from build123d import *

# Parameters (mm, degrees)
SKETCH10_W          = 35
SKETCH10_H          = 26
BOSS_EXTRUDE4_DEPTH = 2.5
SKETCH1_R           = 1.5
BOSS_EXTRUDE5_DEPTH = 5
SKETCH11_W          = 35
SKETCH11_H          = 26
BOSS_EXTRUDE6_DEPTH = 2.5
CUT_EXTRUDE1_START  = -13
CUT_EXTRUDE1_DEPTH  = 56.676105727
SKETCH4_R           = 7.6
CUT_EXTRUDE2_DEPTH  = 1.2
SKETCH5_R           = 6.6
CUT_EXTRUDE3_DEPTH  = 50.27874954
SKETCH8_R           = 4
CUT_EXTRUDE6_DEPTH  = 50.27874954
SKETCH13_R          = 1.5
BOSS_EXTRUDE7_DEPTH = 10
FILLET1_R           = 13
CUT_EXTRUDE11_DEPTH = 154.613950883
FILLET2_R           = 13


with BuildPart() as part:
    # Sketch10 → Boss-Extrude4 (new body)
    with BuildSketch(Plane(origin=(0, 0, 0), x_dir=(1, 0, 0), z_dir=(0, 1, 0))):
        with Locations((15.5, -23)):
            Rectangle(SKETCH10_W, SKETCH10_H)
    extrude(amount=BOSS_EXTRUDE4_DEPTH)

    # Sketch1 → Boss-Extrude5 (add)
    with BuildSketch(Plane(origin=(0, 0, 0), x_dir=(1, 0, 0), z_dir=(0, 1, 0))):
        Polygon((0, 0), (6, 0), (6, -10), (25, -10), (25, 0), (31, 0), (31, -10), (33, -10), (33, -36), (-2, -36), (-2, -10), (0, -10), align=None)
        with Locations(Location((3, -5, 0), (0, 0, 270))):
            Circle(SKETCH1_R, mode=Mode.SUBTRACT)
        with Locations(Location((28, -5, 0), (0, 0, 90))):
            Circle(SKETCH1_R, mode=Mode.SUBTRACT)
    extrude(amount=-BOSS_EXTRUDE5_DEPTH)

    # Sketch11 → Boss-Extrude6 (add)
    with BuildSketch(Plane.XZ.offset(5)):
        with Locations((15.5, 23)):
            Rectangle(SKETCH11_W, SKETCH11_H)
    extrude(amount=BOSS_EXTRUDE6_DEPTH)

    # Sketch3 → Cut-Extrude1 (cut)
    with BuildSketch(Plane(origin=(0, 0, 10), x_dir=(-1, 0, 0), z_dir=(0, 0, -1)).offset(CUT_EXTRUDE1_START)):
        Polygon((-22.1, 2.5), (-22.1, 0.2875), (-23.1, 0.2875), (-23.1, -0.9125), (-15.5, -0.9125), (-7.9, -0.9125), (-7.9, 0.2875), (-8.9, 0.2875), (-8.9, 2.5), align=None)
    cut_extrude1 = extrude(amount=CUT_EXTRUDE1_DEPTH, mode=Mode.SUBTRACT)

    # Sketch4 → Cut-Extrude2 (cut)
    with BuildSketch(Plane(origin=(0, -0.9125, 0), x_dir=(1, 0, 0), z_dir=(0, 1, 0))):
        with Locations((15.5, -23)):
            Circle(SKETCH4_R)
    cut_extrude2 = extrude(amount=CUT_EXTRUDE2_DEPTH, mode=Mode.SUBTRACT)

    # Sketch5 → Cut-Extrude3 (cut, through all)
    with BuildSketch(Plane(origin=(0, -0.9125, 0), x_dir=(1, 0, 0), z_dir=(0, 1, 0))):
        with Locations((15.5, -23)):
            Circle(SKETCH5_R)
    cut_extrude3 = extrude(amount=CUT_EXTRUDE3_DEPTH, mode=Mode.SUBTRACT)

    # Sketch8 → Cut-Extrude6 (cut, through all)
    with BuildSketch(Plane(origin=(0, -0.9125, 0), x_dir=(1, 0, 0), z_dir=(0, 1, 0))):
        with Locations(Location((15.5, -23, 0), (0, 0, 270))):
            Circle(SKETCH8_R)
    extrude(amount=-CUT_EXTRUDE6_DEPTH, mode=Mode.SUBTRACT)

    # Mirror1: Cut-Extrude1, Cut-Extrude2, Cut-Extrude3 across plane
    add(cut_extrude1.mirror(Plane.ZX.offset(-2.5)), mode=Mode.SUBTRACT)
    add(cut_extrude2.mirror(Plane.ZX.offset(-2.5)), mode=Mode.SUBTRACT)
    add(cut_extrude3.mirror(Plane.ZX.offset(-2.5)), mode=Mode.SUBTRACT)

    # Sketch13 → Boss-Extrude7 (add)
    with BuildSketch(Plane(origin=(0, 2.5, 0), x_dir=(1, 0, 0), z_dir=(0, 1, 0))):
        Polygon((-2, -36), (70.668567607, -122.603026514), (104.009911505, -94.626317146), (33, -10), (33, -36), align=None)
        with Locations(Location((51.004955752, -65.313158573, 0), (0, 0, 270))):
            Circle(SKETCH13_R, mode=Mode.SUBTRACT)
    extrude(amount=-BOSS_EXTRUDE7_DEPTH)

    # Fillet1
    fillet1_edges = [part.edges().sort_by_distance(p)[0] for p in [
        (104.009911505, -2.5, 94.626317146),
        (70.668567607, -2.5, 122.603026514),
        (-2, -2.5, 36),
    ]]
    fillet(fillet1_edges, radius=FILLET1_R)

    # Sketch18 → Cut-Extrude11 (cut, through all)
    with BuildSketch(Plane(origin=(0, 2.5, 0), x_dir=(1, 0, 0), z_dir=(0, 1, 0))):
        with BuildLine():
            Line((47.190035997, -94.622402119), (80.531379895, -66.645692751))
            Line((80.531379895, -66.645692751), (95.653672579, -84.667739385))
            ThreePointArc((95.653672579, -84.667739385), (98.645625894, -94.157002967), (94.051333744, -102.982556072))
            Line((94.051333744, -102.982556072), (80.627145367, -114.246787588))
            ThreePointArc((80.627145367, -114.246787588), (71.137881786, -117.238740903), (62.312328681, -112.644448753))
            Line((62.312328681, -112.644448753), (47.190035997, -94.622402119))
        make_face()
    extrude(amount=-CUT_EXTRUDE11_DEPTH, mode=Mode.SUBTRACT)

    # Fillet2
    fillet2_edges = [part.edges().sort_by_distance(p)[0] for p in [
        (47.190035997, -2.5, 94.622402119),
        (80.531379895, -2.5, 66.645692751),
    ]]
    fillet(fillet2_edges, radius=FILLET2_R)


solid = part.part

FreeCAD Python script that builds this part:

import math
import FreeCAD as App
import Part
import Sketcher
Q = App.Units.Quantity


def edges_at(feature, points):
    """Names of the edges that pass closest to the given points."""
    edges = feature.Shape.Edges
    near = lambda p: min(range(len(edges)), key=lambda i: edges[i].distToShape(Part.Vertex(*p))[0])
    return sorted({f"Edge{near(p) + 1}" for p in points})

doc = App.newDocument("Part")
body = doc.addObject("PartDesign::Body", "Body")

sketch1 = body.newObject("Sketcher::SketchObject", "Sketch")
sketch1.AttachmentSupport = (doc.getObject("XZ_Plane"), [""])
sketch1.MapMode = "FlatFace"
sketch1.addGeometry(Part.LineSegment(App.Vector(-2, 10, 0), App.Vector(-2, 36, 0)), False)
sketch1.addGeometry(Part.LineSegment(App.Vector(-2, 36, 0), App.Vector(33, 36, 0)), False)
sketch1.addGeometry(Part.LineSegment(App.Vector(33, 36, 0), App.Vector(33, 10, 0)), False)
sketch1.addGeometry(Part.LineSegment(App.Vector(33, 10, 0), App.Vector(-2, 10, 0)), False)
sketch1.addConstraint(Sketcher.Constraint("Coincident", 0, 2, 1, 1))
sketch1.addConstraint(Sketcher.Constraint("Coincident", 1, 2, 2, 1))
sketch1.addConstraint(Sketcher.Constraint("Coincident", 2, 2, 3, 1))
sketch1.addConstraint(Sketcher.Constraint("Coincident", 3, 2, 0, 1))
sketch1.addConstraint(Sketcher.Constraint("Vertical", 0))
sketch1.addConstraint(Sketcher.Constraint("Horizontal", 1))
sketch1.addConstraint(Sketcher.Constraint("Vertical", 2))
sketch1.addConstraint(Sketcher.Constraint("Horizontal", 3))
sketch1.addConstraint(Sketcher.Constraint("DistanceX", 1, 1, 1, 2, 35.0))
sketch1.addConstraint(Sketcher.Constraint("DistanceY", 0, 1, 0, 2, 26.0))
sketch1.addConstraint(Sketcher.Constraint("DistanceX", 0, 2, -1, 1, 2.0))
sketch1.addConstraint(Sketcher.Constraint("DistanceY", -1, 1, 0, 2, 36.0))
pad1 = body.newObject("PartDesign::Pad", "Pad")
pad1.Profile = sketch1
pad1.Length = 2.5
pad1.Reversed = True

sketch2 = body.newObject("Sketcher::SketchObject", "Sketch001")
sketch2.AttachmentSupport = (doc.getObject("XZ_Plane"), [""])
sketch2.MapMode = "FlatFace"
sketch2.addGeometry(Part.LineSegment(App.Vector(6, 0, 0), App.Vector(0, 0, 0)), False)
sketch2.addGeometry(Part.LineSegment(App.Vector(0, 0, 0), App.Vector(0, 10, 0)), False)
sketch2.addGeometry(Part.LineSegment(App.Vector(0, 10, 0), App.Vector(-2, 10, 0)), False)
sketch2.addGeometry(Part.LineSegment(App.Vector(-2, 10, 0), App.Vector(-2, 36, 0)), False)
sketch2.addGeometry(Part.LineSegment(App.Vector(-2, 36, 0), App.Vector(33, 36, 0)), False)
sketch2.addGeometry(Part.LineSegment(App.Vector(33, 36, 0), App.Vector(33, 10, 0)), False)
sketch2.addGeometry(Part.LineSegment(App.Vector(33, 10, 0), App.Vector(31, 10, 0)), False)
sketch2.addGeometry(Part.LineSegment(App.Vector(31, 10, 0), App.Vector(31, 0, 0)), False)
sketch2.addGeometry(Part.LineSegment(App.Vector(31, 0, 0), App.Vector(25, 0, 0)), False)
sketch2.addGeometry(Part.LineSegment(App.Vector(25, 0, 0), App.Vector(25, 10, 0)), False)
sketch2.addGeometry(Part.LineSegment(App.Vector(25, 10, 0), App.Vector(6, 10, 0)), False)
sketch2.addGeometry(Part.LineSegment(App.Vector(6, 10, 0), App.Vector(6, 0, 0)), False)
sketch2.addGeometry(Part.Circle(App.Vector(28, 5, 0), App.Vector(0, 0, 1), 1.5), False)
sketch2.addGeometry(Part.Circle(App.Vector(3, 5, 0), App.Vector(0, 0, 1), 1.5), False)
sketch2.addConstraint(Sketcher.Constraint("Coincident", 0, 2, 1, 1))
sketch2.addConstraint(Sketcher.Constraint("Coincident", 1, 2, 2, 1))
sketch2.addConstraint(Sketcher.Constraint("Coincident", 2, 2, 3, 1))
sketch2.addConstraint(Sketcher.Constraint("Coincident", 3, 2, 4, 1))
sketch2.addConstraint(Sketcher.Constraint("Coincident", 4, 2, 5, 1))
sketch2.addConstraint(Sketcher.Constraint("Coincident", 5, 2, 6, 1))
sketch2.addConstraint(Sketcher.Constraint("Coincident", 6, 2, 7, 1))
sketch2.addConstraint(Sketcher.Constraint("Coincident", 7, 2, 8, 1))
sketch2.addConstraint(Sketcher.Constraint("Coincident", 8, 2, 9, 1))
sketch2.addConstraint(Sketcher.Constraint("Coincident", 9, 2, 10, 1))
sketch2.addConstraint(Sketcher.Constraint("Coincident", 10, 2, 11, 1))
sketch2.addConstraint(Sketcher.Constraint("Coincident", 11, 2, 0, 1))
sketch2.addConstraint(Sketcher.Constraint("Horizontal", 0))
sketch2.addConstraint(Sketcher.Constraint("Vertical", 1))
sketch2.addConstraint(Sketcher.Constraint("Horizontal", 2))
sketch2.addConstraint(Sketcher.Constraint("Vertical", 3))
sketch2.addConstraint(Sketcher.Constraint("Horizontal", 4))
sketch2.addConstraint(Sketcher.Constraint("Vertical", 5))
sketch2.addConstraint(Sketcher.Constraint("Horizontal", 6))
sketch2.addConstraint(Sketcher.Constraint("Vertical", 7))
sketch2.addConstraint(Sketcher.Constraint("Horizontal", 8))
sketch2.addConstraint(Sketcher.Constraint("Vertical", 9))
sketch2.addConstraint(Sketcher.Constraint("Horizontal", 10))
sketch2.addConstraint(Sketcher.Constraint("Vertical", 11))
sketch2.addConstraint(Sketcher.Constraint("Coincident", 0, 2, -1, 1))
sketch2.addConstraint(Sketcher.Constraint("Equal", 12, 13))
sketch2.addConstraint(Sketcher.Constraint("PointOnObject", 7, 2, -1))
sketch2.addConstraint(Sketcher.Constraint("Horizontal", 12, 3, 13, 3))
sketch2.addConstraint(Sketcher.Constraint("Horizontal", 2, 2, 5, 2))
sketch2.addConstraint(Sketcher.Constraint("Horizontal", 6, 2, 9, 2))
sketch2.addConstraint(Sketcher.Constraint("Equal", 2, 6))
sketch2.addConstraint(Sketcher.Constraint("Equal", 0, 8))
sketch2.addConstraint(Sketcher.Constraint("Diameter", 12, 3.0))
sketch2.addConstraint(Sketcher.Constraint("DistanceX", 0, 2, 0, 1, 6.0))
sketch2.addConstraint(Sketcher.Constraint("DistanceX", 2, 2, 2, 1, 2.0))
sketch2.addConstraint(Sketcher.Constraint("DistanceX", 4, 1, 4, 2, 35.0))
sketch2.addConstraint(Sketcher.Constraint("DistanceY", 1, 1, 1, 2, 10.0))
sketch2.addConstraint(Sketcher.Constraint("DistanceY", 3, 1, 3, 2, 26.0))
sketch2.addConstraint(Sketcher.Constraint("DistanceX", -1, 1, 12, 3, 28.0))
sketch2.addConstraint(Sketcher.Constraint("DistanceY", -1, 1, 12, 3, 5.0))
sketch2.addConstraint(Sketcher.Constraint("DistanceX", -1, 1, 13, 3, 3.0))
pad2 = body.newObject("PartDesign::Pad", "Pad001")
pad2.Profile = sketch2
pad2.Length = 5

sketch3 = body.newObject("Sketcher::SketchObject", "Sketch002")
sketch3.AttachmentSupport = (doc.getObject("XZ_Plane"), [""])
sketch3.MapMode = "FlatFace"
sketch3.AttachmentOffset = App.Placement(App.Vector(0, 0, 5), App.Rotation())
sketch3.addGeometry(Part.LineSegment(App.Vector(-2, 36, 0), App.Vector(-2, 10, 0)), False)
sketch3.addGeometry(Part.LineSegment(App.Vector(-2, 10, 0), App.Vector(33, 10, 0)), False)
sketch3.addGeometry(Part.LineSegment(App.Vector(33, 10, 0), App.Vector(33, 36, 0)), False)
sketch3.addGeometry(Part.LineSegment(App.Vector(33, 36, 0), App.Vector(-2, 36, 0)), False)
sketch3.addConstraint(Sketcher.Constraint("Coincident", 0, 2, 1, 1))
sketch3.addConstraint(Sketcher.Constraint("Coincident", 1, 2, 2, 1))
sketch3.addConstraint(Sketcher.Constraint("Coincident", 2, 2, 3, 1))
sketch3.addConstraint(Sketcher.Constraint("Coincident", 3, 2, 0, 1))
sketch3.addConstraint(Sketcher.Constraint("Vertical", 0))
sketch3.addConstraint(Sketcher.Constraint("Horizontal", 1))
sketch3.addConstraint(Sketcher.Constraint("Vertical", 2))
sketch3.addConstraint(Sketcher.Constraint("Horizontal", 3))
sketch3.addConstraint(Sketcher.Constraint("DistanceX", 1, 1, 1, 2, 35.0))
sketch3.addConstraint(Sketcher.Constraint("DistanceY", 0, 2, 0, 1, 26.0))
sketch3.addConstraint(Sketcher.Constraint("DistanceX", 0, 2, -1, 1, 2.0))
sketch3.addConstraint(Sketcher.Constraint("DistanceY", -1, 1, 0, 2, 10.0))
pad3 = body.newObject("PartDesign::Pad", "Pad002")
pad3.Profile = sketch3
pad3.Length = 2.5

sketch4 = body.newObject("Sketcher::SketchObject", "Sketch003")
sketch4.AttachmentSupport = (doc.getObject("XY_Plane"), [""])
sketch4.MapMode = "FlatFace"
sketch4.AttachmentOffset = App.Placement(App.Vector(0, 0, 23), App.Rotation())
sketch4.addGeometry(Part.LineSegment(App.Vector(22.1, 2.5, 0), App.Vector(22.1, 0.3, 0)), False)
sketch4.addGeometry(Part.LineSegment(App.Vector(22.1, 0.3, 0), App.Vector(23.1, 0.3, 0)), False)
sketch4.addGeometry(Part.LineSegment(App.Vector(23.1, 0.3, 0), App.Vector(23.1, -0.9, 0)), False)
sketch4.addGeometry(Part.LineSegment(App.Vector(23.1, -0.9, 0), App.Vector(7.9, -0.9, 0)), False)
sketch4.addGeometry(Part.LineSegment(App.Vector(7.9, -0.9, 0), App.Vector(7.9, 0.3, 0)), False)
sketch4.addGeometry(Part.LineSegment(App.Vector(7.9, 0.3, 0), App.Vector(8.9, 0.3, 0)), False)
sketch4.addGeometry(Part.LineSegment(App.Vector(8.9, 0.3, 0), App.Vector(8.9, 2.5, 0)), False)
sketch4.addGeometry(Part.LineSegment(App.Vector(8.9, 2.5, 0), App.Vector(22.1, 2.5, 0)), False)
sketch4.addConstraint(Sketcher.Constraint("Coincident", 0, 2, 1, 1))
sketch4.addConstraint(Sketcher.Constraint("Coincident", 1, 2, 2, 1))
sketch4.addConstraint(Sketcher.Constraint("Coincident", 2, 2, 3, 1))
sketch4.addConstraint(Sketcher.Constraint("Coincident", 3, 2, 4, 1))
sketch4.addConstraint(Sketcher.Constraint("Coincident", 4, 2, 5, 1))
sketch4.addConstraint(Sketcher.Constraint("Coincident", 5, 2, 6, 1))
sketch4.addConstraint(Sketcher.Constraint("Coincident", 6, 2, 7, 1))
sketch4.addConstraint(Sketcher.Constraint("Coincident", 7, 2, 0, 1))
sketch4.addConstraint(Sketcher.Constraint("Vertical", 0))
sketch4.addConstraint(Sketcher.Constraint("Horizontal", 1))
sketch4.addConstraint(Sketcher.Constraint("Vertical", 2))
sketch4.addConstraint(Sketcher.Constraint("Horizontal", 3))
sketch4.addConstraint(Sketcher.Constraint("Vertical", 4))
sketch4.addConstraint(Sketcher.Constraint("Horizontal", 5))
sketch4.addConstraint(Sketcher.Constraint("Vertical", 6))
sketch4.addConstraint(Sketcher.Constraint("Horizontal", 7))
sketch4.addConstraint(Sketcher.Constraint("Horizontal", 1, 2, 4, 2))
sketch4.addConstraint(Sketcher.Constraint("Equal", 1, 5))
sketch4.addConstraint(Sketcher.Constraint("DistanceX", 1, 1, 1, 2, 1.0))
sketch4.addConstraint(Sketcher.Constraint("DistanceX", 3, 2, 3, 1, 15.2))
sketch4.addConstraint(Sketcher.Constraint("DistanceY", 2, 2, 2, 1, 1.2))
sketch4.addConstraint(Sketcher.Constraint("DistanceX", -1, 1, 0, 2, 22.1))
sketch4.addConstraint(Sketcher.Constraint("DistanceY", -1, 1, 6, 2, 2.5))
sketch4.addConstraint(Sketcher.Constraint("DistanceY", 0, 2, 0, 1, 2.2125))
pocket1 = body.newObject("PartDesign::Pocket", "Pocket")
pocket1.Profile = sketch4
pocket1.Length = 56.676106

sketch5 = body.newObject("Sketcher::SketchObject", "Sketch004")
sketch5.AttachmentSupport = (doc.getObject("XZ_Plane"), [""])
sketch5.MapMode = "FlatFace"
sketch5.AttachmentOffset = App.Placement(App.Vector(0, 0, 0.9125), App.Rotation())
sketch5.addGeometry(Part.Circle(App.Vector(16, 23, 0), App.Vector(0, 0, 1), 8), False)
sketch5.addConstraint(Sketcher.Constraint("Diameter", 0, 15.2))
sketch5.addConstraint(Sketcher.Constraint("DistanceY", -1, 1, 0, 3, 23.0))
sketch5.addConstraint(Sketcher.Constraint("DistanceX", -1, 1, 0, 3, 15.5))
pocket2 = body.newObject("PartDesign::Pocket", "Pocket001")
pocket2.Profile = sketch5
pocket2.Length = 1.2

sketch6 = body.newObject("Sketcher::SketchObject", "Sketch005")
sketch6.AttachmentSupport = (doc.getObject("XZ_Plane"), [""])
sketch6.MapMode = "FlatFace"
sketch6.AttachmentOffset = App.Placement(App.Vector(0, 0, 0.9125), App.Rotation())
sketch6.addGeometry(Part.Circle(App.Vector(16, 23, 0), App.Vector(0, 0, 1), 7), False)
sketch6.addConstraint(Sketcher.Constraint("Diameter", 0, 13.2))
sketch6.addConstraint(Sketcher.Constraint("DistanceY", -1, 1, 0, 3, 23.0))
sketch6.addConstraint(Sketcher.Constraint("DistanceX", -1, 1, 0, 3, 15.5))
pocket3 = body.newObject("PartDesign::Pocket", "Pocket002")
pocket3.Profile = sketch6
pocket3.Type = "ThroughAll"

sketch7 = body.newObject("Sketcher::SketchObject", "Sketch006")
sketch7.AttachmentSupport = (doc.getObject("XZ_Plane"), [""])
sketch7.MapMode = "FlatFace"
sketch7.AttachmentOffset = App.Placement(App.Vector(0, 0, 0.9125), App.Rotation())
sketch7.addGeometry(Part.Circle(App.Vector(15.5, 23, 0), App.Vector(0, 0, 1), 4), False)
sketch7.addConstraint(Sketcher.Constraint("Diameter", 0, 8.0))
sketch7.addConstraint(Sketcher.Constraint("DistanceY", -1, 1, 0, 3, 23.0))
sketch7.addConstraint(Sketcher.Constraint("DistanceX", -1, 1, 0, 3, 15.5))
pocket4 = body.newObject("PartDesign::Pocket", "Pocket003")
pocket4.Profile = sketch7
pocket4.Type = "ThroughAll"
pocket4.Reversed = True
doc.recompute()

datumplane = body.newObject("PartDesign::Plane", "DatumPlane")
datumplane.AttachmentSupport = (doc.getObject("XZ_Plane"), [""])
datumplane.MapMode = "FlatFace"
datumplane.AttachmentOffset = App.Placement(App.Vector(0, 0, 2.5), App.Rotation())
mirrored = body.newObject("PartDesign::Mirrored", "Mirrored")
mirrored.Originals = [pocket1, pocket2, pocket3]
mirrored.MirrorPlane = (datumplane, [""])
body.Tip = mirrored

sketch8 = body.newObject("Sketcher::SketchObject", "Sketch007")
sketch8.AttachmentSupport = (doc.getObject("XZ_Plane"), [""])
sketch8.MapMode = "FlatFace"
sketch8.AttachmentOffset = App.Placement(App.Vector(0, 0, -2.5), App.Rotation())
sketch8.addGeometry(Part.LineSegment(App.Vector(-2, 36, 0), App.Vector(70.7, 122.6, 0)), False)
sketch8.addGeometry(Part.LineSegment(App.Vector(70.7, 122.6, 0), App.Vector(104, 94.6, 0)), False)
sketch8.addGeometry(Part.LineSegment(App.Vector(104, 94.6, 0), App.Vector(33, 10, 0)), False)
sketch8.addGeometry(Part.LineSegment(App.Vector(33, 10, 0), App.Vector(33, 36, 0)), False)
sketch8.addGeometry(Part.LineSegment(App.Vector(33, 36, 0), App.Vector(-2, 36, 0)), False)
sketch8.addGeometry(Part.Circle(App.Vector(51, 65.3, 0), App.Vector(0, 0, 1), 1.5), False)
sketch8.addConstraint(Sketcher.Constraint("Coincident", 0, 2, 1, 1))
sketch8.addConstraint(Sketcher.Constraint("Coincident", 1, 2, 2, 1))
sketch8.addConstraint(Sketcher.Constraint("Coincident", 2, 2, 3, 1))
sketch8.addConstraint(Sketcher.Constraint("Coincident", 3, 2, 4, 1))
sketch8.addConstraint(Sketcher.Constraint("Coincident", 4, 2, 0, 1))
sketch8.addConstraint(Sketcher.Constraint("Vertical", 3))
sketch8.addConstraint(Sketcher.Constraint("Horizontal", 4))
sketch8.addConstraint(Sketcher.Constraint("Perpendicular", 0, 1))
sketch8.addConstraint(Sketcher.Constraint("Perpendicular", 1, 2))
sketch8.addConstraint(Sketcher.Constraint("Diameter", 5, 3.0))
sketch8.addConstraint(Sketcher.Constraint("DistanceX", 4, 2, 4, 1, 35.0))
sketch8.addConstraint(Sketcher.Constraint("DistanceY", 3, 1, 3, 2, 26.0))
sketch8.addConstraint(Sketcher.Constraint("Angle", 0, Q("50 deg")))
sketch8.addConstraint(Sketcher.Constraint("DistanceX", -1, 1, 2, 2, 33.0))
sketch8.addConstraint(Sketcher.Constraint("DistanceY", -1, 1, 2, 2, 10.0))
sketch8.addConstraint(Sketcher.Constraint("Distance", 2, 110.471811))
sketch8.addConstraint(Sketcher.Constraint("DistanceY", -1, 1, 5, 3, 65.313159))
sketch8.addConstraint(Sketcher.Constraint("DistanceX", 5, 3, 0, 2, 19.663612))
pad4 = body.newObject("PartDesign::Pad", "Pad003")
pad4.Profile = sketch8
pad4.Length = 10
doc.recompute()

fillet = body.newObject("PartDesign::Fillet", "Fillet")
fillet.Base = (pad4, edges_at(pad4, [(104.01, -2.5, 94.626), (70.669, -2.5, 122.603), (-2, -2.5, 36)]))
fillet.Radius = 13

sketch9 = body.newObject("Sketcher::SketchObject", "Sketch008")
sketch9.AttachmentSupport = (doc.getObject("XZ_Plane"), [""])
sketch9.MapMode = "FlatFace"
sketch9.AttachmentOffset = App.Placement(App.Vector(0, 0, -2.5), App.Rotation())
sketch9.addGeometry(Part.LineSegment(App.Vector(81, 67, 0), App.Vector(47, 95, 0)), False)
sketch9.addGeometry(Part.LineSegment(App.Vector(47, 95, 0), App.Vector(62, 113, 0)), False)
sketch9.addGeometry(Part.ArcOfCircle(Part.Circle(App.Vector(72, 104, 0), App.Vector(0, 0, 1), 13), math.radians(50), math.radians(140)), False)
sketch9.addGeometry(Part.LineSegment(App.Vector(81, 114, 0), App.Vector(94, 103, 0)), False)
sketch9.addGeometry(Part.ArcOfCircle(Part.Circle(App.Vector(86, 93, 0), App.Vector(0, 0, 1), 13), math.radians(-40), math.radians(50)), False)
sketch9.addGeometry(Part.LineSegment(App.Vector(96, 85, 0), App.Vector(81, 67, 0)), False)
sketch9.addConstraint(Sketcher.Constraint("Coincident", 0, 2, 1, 1))
sketch9.addConstraint(Sketcher.Constraint("Tangent", 1, 2, 2, 2))
sketch9.addConstraint(Sketcher.Constraint("Tangent", 2, 1, 3, 1))
sketch9.addConstraint(Sketcher.Constraint("Tangent", 3, 2, 4, 2))
sketch9.addConstraint(Sketcher.Constraint("Tangent", 4, 1, 5, 1))
sketch9.addConstraint(Sketcher.Constraint("Coincident", 5, 2, 0, 1))
sketch9.addConstraint(Sketcher.Constraint("Equal", 2, 4))
sketch9.addConstraint(Sketcher.Constraint("Perpendicular", 0, 1))
sketch9.addConstraint(Sketcher.Constraint("Perpendicular", 1, 3))
sketch9.addConstraint(Sketcher.Constraint("Perpendicular", 3, 5))
sketch9.addConstraint(Sketcher.Constraint("Radius", 2, 13.0))
sketch9.addConstraint(Sketcher.Constraint("Angle", 0, Q("140 deg")))
sketch9.addConstraint(Sketcher.Constraint("Distance", 1, 23.526111))
sketch9.addConstraint(Sketcher.Constraint("DistanceY", -1, 1, 2, 3, 104.28821))
sketch9.addConstraint(Sketcher.Constraint("DistanceY", -1, 1, 4, 3, 93.023978))
sketch9.addConstraint(Sketcher.Constraint("DistanceX", -1, 1, 1, 2, 62.312329))
pocket5 = body.newObject("PartDesign::Pocket", "Pocket004")
pocket5.Profile = sketch9
pocket5.Type = "ThroughAll"
pocket5.Reversed = True
doc.recompute()

fillet2 = body.newObject("PartDesign::Fillet", "Fillet001")
fillet2.Base = (pocket5, edges_at(pocket5, [(47.19, -2.5, 94.622), (80.531, -2.5, 66.646)]))
fillet2.Radius = 13

doc.recompute()
